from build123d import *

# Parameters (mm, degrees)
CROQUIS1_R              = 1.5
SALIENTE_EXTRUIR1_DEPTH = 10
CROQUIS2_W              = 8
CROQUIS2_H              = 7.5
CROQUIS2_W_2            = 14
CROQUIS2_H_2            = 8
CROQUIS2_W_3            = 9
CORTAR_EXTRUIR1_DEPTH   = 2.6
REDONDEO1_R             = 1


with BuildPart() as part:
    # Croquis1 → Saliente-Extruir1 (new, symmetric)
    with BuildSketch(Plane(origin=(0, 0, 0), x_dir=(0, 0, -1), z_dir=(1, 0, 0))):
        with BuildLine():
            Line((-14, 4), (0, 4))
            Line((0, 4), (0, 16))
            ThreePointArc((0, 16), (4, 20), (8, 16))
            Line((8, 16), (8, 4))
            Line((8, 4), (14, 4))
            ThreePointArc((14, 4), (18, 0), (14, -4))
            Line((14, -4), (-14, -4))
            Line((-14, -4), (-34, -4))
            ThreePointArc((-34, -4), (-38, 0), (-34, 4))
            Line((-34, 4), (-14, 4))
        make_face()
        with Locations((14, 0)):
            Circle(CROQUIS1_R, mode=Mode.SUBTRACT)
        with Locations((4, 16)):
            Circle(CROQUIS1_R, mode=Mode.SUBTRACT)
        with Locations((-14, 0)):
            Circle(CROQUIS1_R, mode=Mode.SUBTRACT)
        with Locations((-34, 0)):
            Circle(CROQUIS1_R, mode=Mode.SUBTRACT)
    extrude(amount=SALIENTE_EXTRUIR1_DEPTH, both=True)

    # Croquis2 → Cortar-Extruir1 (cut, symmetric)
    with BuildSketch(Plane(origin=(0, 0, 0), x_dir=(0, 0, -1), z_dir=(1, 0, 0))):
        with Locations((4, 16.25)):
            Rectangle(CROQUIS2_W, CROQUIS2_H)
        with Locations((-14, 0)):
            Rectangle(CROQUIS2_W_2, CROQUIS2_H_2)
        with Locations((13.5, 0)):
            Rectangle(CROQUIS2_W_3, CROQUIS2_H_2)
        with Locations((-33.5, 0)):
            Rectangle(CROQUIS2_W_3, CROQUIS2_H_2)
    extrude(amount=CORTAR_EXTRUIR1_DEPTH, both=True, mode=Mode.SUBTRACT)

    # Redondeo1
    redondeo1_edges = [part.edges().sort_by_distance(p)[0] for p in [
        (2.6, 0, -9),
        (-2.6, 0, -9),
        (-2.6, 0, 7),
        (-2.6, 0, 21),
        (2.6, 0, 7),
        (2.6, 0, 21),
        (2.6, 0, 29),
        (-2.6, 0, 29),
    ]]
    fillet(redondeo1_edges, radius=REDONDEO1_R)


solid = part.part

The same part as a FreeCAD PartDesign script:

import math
import FreeCAD as App
import Part
import Sketcher

V = App.Vector


def edges_at(feature, points):
    """Names of the edges that pass closest to the given points."""
    edges = feature.Shape.Edges
    near = lambda p: min(range(len(edges)), key=lambda i: edges[i].distToShape(Part.Vertex(*p))[0])
    return sorted({f"Edge{near(p) + 1}" for p in points})


def add_polygon(sketch, points):
    """Adds a closed chain of lines whose ends are joined by coincident constraints."""
    first, n = sketch.GeometryCount, len(points)
    for a, b in zip(points, points[1:] + points[:1]):
        sketch.addGeometry(Part.LineSegment(App.Vector(*a, 0), App.Vector(*b, 0)), False)
    for i in range(n):
        sketch.addConstraint(Sketcher.Constraint("Coincident", first + i, 2, first + (i + 1) % n, 1))

doc = App.newDocument("Part")
body = doc.addObject("PartDesign::Body", "Body")

# Sketch on YZ plane
sketch1 = body.newObject("Sketcher::SketchObject", "Sketch")
sketch1.AttachmentSupport = (doc.getObject("YZ_Plane"), [""])
sketch1.MapMode = "FlatFace"
sketch1.addGeometry(Part.LineSegment(V(16, 0, 0), V(4, 0, 0)), False)
sketch1.addGeometry(Part.LineSegment(V(4, 0, 0), V(4, 34, 0)), False)
sketch1.addGeometry(Part.ArcOfCircle(Part.Circle(V(0, 34, 0), V(0, 0, 1), 4), math.radians(0), math.radians(180)), False)
sketch1.addGeometry(Part.LineSegment(V(-4, 34, 0), V(-4, -14, 0)), False)
sketch1.addGeometry(Part.ArcOfCircle(Part.Circle(V(0, -14, 0), V(0, 0, 1), 4), math.radians(180), math.radians(360)), False)
sketch1.addGeometry(Part.LineSegment(V(4, -14, 0), V(4, -8, 0)), False)
sketch1.addGeometry(Part.LineSegment(V(4, -8, 0), V(16, -8, 0)), False)
sketch1.addGeometry(Part.ArcOfCircle(Part.Circle(V(16, -4, 0), V(0, 0, 1), 4), math.radians(-90), math.radians(90)), False)
sketch1.addGeometry(Part.Circle(V(0, -14, 0), V(0, 0, 1), 1.5), False)
sketch1.addGeometry(Part.Circle(V(0, 14, 0), V(0, 0, 1), 1.5), False)
sketch1.addGeometry(Part.Circle(V(0, 34, 0), V(0, 0, 1), 1.5), False)
sketch1.addGeometry(Part.Circle(V(16, -4, 0), V(0, 0, 1), 1.5), False)
sketch1.addConstraint(Sketcher.Constraint("Coincident", 0, 2, 1, 1))
sketch1.addConstraint(Sketcher.Constraint("Tangent", 1, 2, 2, 1))
sketch1.addConstraint(Sketcher.Constraint("Tangent", 2, 2, 3, 1))
sketch1.addConstraint(Sketcher.Constraint("Tangent", 3, 2, 4, 1))
sketch1.addConstraint(Sketcher.Constraint("Tangent", 4, 2, 5, 1))
sketch1.addConstraint(Sketcher.Constraint("Coincident", 5, 2, 6, 1))
sketch1.addConstraint(Sketcher.Constraint("Tangent", 6, 2, 7, 1))
sketch1.addConstraint(Sketcher.Constraint("Tangent", 7, 2, 0, 1))
sketch1.addConstraint(Sketcher.Constraint("Horizontal", 0))
sketch1.addConstraint(Sketcher.Constraint("Vertical", 1))
sketch1.addConstraint(Sketcher.Constraint("Vertical", 3))
sketch1.addConstraint(Sketcher.Constraint("Vertical", 5))
sketch1.addConstraint(Sketcher.Constraint("Horizontal", 6))
sketch1.addConstraint(Sketcher.Constraint("Coincident", 8, 3, 4, 3))
sketch1.addConstraint(Sketcher.Constraint("Coincident", 10, 3, 2, 3))
sketch1.addConstraint(Sketcher.Constraint("Coincident", 11, 3, 7, 3))
sketch1.addConstraint(Sketcher.Constraint("Equal", 2, 4))
sketch1.addConstraint(Sketcher.Constraint("Equal", 4, 7))
sketch1.addConstraint(Sketcher.Constraint("Equal", 8, 9))
sketch1.addConstraint(Sketcher.Constraint("Equal", 9, 10))
sketch1.addConstraint(Sketcher.Constraint("Equal", 10, 11))
sketch1.addConstraint(Sketcher.Constraint("Symmetric", 4, 3, 9, 3, -1, 1))
sketch1.addConstraint(Sketcher.Constraint("PointOnObject", 2, 3, -2))
sketch1.addConstraint(Sketcher.Constraint("PointOnObject", 0, 2, -1))
sketch1.addConstraint(Sketcher.Constraint("Diameter", 8, 3.0))
sketch1.addConstraint(Sketcher.Constraint("Radius", 2, 4.0))
sketch1.addConstraint(Sketcher.Constraint("DistanceX", 0, 2, 0, 1, 12.0))
sketch1.addConstraint(Sketcher.Constraint("DistanceY", 1, 1, 1, 2, 34.0))
sketch1.addConstraint(Sketcher.Constraint("DistanceY", 3, 2, 3, 1, 48.0))
pad1 = body.newObject("PartDesign::Pad", "Pad")
pad1.Profile = sketch1
pad1.Length = 20
pad1.Midplane = True

# Sketch on YZ plane
sketch2 = body.newObject("Sketcher::SketchObject", "Sketch001")
sketch2.AttachmentSupport = (doc.getObject("YZ_Plane"), [""])
sketch2.MapMode = "FlatFace"
add_polygon(sketch2, [(20, 0), (12, 0), (12, -8), (20, -8)])  # lines 0-3
add_polygon(sketch2, [(4, 21), (-4, 21), (-4, 7), (4, 7)])  # lines 4-7
add_polygon(sketch2, [(4, -9), (-4, -9), (-4, -18), (4, -18)])  # lines 8-11
add_polygon(sketch2, [(4, 38), (-4, 38), (-4, 29), (4, 29)])  # lines 12-15
sketch2.addConstraint(Sketcher.Constraint("Horizontal", 0))
sketch2.addConstraint(Sketcher.Constraint("Vertical", 1))
sketch2.addConstraint(Sketcher.Constraint("Horizontal", 2))
sketch2.addConstraint(Sketcher.Constraint("Vertical", 3))
sketch2.addConstraint(Sketcher.Constraint("Horizontal", 4))
sketch2.addConstraint(Sketcher.Constraint("Vertical", 5))
sketch2.addConstraint(Sketcher.Constraint("Horizontal", 6))
sketch2.addConstraint(Sketcher.Constraint("Vertical", 7))
sketch2.addConstraint(Sketcher.Constraint("Horizontal", 8))
sketch2.addConstraint(Sketcher.Constraint("Vertical", 9))
sketch2.addConstraint(Sketcher.Constraint("Horizontal", 10))
sketch2.addConstraint(Sketcher.Constraint("Vertical", 11))
sketch2.addConstraint(Sketcher.Constraint("Horizontal", 12))
sketch2.addConstraint(Sketcher.Constraint("Vertical", 13))
sketch2.addConstraint(Sketcher.Constraint("Horizontal", 14))
sketch2.addConstraint(Sketcher.Constraint("Vertical", 15))
sketch2.addConstraint(Sketcher.Constraint("PointOnObject", 0, 2, -1))
sketch2.addConstraint(Sketcher.Constraint("Vertical", 5, 2, 8, 2))
sketch2.addConstraint(Sketcher.Constraint("Vertical", 7, 2, 10, 2))
sketch2.addConstraint(Sketcher.Constraint("Vertical", 9, 2, 12, 2))
sketch2.addConstraint(Sketcher.Constraint("Vertical", 11, 2, 14, 2))
sketch2.addConstraint(Sketcher.Constraint("Equal", 14, 1))
sketch2.addConstraint(Sketcher.Constraint("Equal", 11, 13))
sketch2.addConstraint(Sketcher.Constraint("DistanceX", 4, 2, 4, 1, 8.0))
sketch2.addConstraint(Sketcher.Constraint("DistanceY", 5, 2, 5, 1, 14.0))
sketch2.addConstraint(Sketcher.Constraint("DistanceY", 9, 2, 9, 1, 9.0))
sketch2.addConstraint(Sketcher.Constraint("DistanceX", 0, 2, 0, 1, 7.5))
sketch2.addConstraint(Sketcher.Constraint("DistanceX", -1, 1, 2, 2, 20.0))
sketch2.addConstraint(Sketcher.Constraint("DistanceX", 4, 2, -1, 1, 4.0))
sketch2.addConstraint(Sketcher.Constraint("DistanceY", -1, 1, 4, 2, 21.0))
sketch2.addConstraint(Sketcher.Constraint("DistanceY", 8, 2, -1, 1, 9.0))
sketch2.addConstraint(Sketcher.Constraint("DistanceY", -1, 1, 12, 2, 38.0))
pocket1 = body.newObject("PartDesign::Pocket", "Pocket")
pocket1.Profile = sketch2
pocket1.Length = 5.2
pocket1.Midplane = True
doc.recompute()

fillet = body.newObject("PartDesign::Fillet", "Fillet")
fillet.Base = (pocket1, edges_at(pocket1, [
    (2.6, 0, -9),
    (-2.6, 0, -9),
    (-2.6, 0, 7),
    (-2.6, 0, 21),
    (2.6, 0, 7),
    (2.6, 0, 21),
    (2.6, 0, 29),
    (-2.6, 0, 29),
]))
fillet.Radius = 1

doc.recompute()
